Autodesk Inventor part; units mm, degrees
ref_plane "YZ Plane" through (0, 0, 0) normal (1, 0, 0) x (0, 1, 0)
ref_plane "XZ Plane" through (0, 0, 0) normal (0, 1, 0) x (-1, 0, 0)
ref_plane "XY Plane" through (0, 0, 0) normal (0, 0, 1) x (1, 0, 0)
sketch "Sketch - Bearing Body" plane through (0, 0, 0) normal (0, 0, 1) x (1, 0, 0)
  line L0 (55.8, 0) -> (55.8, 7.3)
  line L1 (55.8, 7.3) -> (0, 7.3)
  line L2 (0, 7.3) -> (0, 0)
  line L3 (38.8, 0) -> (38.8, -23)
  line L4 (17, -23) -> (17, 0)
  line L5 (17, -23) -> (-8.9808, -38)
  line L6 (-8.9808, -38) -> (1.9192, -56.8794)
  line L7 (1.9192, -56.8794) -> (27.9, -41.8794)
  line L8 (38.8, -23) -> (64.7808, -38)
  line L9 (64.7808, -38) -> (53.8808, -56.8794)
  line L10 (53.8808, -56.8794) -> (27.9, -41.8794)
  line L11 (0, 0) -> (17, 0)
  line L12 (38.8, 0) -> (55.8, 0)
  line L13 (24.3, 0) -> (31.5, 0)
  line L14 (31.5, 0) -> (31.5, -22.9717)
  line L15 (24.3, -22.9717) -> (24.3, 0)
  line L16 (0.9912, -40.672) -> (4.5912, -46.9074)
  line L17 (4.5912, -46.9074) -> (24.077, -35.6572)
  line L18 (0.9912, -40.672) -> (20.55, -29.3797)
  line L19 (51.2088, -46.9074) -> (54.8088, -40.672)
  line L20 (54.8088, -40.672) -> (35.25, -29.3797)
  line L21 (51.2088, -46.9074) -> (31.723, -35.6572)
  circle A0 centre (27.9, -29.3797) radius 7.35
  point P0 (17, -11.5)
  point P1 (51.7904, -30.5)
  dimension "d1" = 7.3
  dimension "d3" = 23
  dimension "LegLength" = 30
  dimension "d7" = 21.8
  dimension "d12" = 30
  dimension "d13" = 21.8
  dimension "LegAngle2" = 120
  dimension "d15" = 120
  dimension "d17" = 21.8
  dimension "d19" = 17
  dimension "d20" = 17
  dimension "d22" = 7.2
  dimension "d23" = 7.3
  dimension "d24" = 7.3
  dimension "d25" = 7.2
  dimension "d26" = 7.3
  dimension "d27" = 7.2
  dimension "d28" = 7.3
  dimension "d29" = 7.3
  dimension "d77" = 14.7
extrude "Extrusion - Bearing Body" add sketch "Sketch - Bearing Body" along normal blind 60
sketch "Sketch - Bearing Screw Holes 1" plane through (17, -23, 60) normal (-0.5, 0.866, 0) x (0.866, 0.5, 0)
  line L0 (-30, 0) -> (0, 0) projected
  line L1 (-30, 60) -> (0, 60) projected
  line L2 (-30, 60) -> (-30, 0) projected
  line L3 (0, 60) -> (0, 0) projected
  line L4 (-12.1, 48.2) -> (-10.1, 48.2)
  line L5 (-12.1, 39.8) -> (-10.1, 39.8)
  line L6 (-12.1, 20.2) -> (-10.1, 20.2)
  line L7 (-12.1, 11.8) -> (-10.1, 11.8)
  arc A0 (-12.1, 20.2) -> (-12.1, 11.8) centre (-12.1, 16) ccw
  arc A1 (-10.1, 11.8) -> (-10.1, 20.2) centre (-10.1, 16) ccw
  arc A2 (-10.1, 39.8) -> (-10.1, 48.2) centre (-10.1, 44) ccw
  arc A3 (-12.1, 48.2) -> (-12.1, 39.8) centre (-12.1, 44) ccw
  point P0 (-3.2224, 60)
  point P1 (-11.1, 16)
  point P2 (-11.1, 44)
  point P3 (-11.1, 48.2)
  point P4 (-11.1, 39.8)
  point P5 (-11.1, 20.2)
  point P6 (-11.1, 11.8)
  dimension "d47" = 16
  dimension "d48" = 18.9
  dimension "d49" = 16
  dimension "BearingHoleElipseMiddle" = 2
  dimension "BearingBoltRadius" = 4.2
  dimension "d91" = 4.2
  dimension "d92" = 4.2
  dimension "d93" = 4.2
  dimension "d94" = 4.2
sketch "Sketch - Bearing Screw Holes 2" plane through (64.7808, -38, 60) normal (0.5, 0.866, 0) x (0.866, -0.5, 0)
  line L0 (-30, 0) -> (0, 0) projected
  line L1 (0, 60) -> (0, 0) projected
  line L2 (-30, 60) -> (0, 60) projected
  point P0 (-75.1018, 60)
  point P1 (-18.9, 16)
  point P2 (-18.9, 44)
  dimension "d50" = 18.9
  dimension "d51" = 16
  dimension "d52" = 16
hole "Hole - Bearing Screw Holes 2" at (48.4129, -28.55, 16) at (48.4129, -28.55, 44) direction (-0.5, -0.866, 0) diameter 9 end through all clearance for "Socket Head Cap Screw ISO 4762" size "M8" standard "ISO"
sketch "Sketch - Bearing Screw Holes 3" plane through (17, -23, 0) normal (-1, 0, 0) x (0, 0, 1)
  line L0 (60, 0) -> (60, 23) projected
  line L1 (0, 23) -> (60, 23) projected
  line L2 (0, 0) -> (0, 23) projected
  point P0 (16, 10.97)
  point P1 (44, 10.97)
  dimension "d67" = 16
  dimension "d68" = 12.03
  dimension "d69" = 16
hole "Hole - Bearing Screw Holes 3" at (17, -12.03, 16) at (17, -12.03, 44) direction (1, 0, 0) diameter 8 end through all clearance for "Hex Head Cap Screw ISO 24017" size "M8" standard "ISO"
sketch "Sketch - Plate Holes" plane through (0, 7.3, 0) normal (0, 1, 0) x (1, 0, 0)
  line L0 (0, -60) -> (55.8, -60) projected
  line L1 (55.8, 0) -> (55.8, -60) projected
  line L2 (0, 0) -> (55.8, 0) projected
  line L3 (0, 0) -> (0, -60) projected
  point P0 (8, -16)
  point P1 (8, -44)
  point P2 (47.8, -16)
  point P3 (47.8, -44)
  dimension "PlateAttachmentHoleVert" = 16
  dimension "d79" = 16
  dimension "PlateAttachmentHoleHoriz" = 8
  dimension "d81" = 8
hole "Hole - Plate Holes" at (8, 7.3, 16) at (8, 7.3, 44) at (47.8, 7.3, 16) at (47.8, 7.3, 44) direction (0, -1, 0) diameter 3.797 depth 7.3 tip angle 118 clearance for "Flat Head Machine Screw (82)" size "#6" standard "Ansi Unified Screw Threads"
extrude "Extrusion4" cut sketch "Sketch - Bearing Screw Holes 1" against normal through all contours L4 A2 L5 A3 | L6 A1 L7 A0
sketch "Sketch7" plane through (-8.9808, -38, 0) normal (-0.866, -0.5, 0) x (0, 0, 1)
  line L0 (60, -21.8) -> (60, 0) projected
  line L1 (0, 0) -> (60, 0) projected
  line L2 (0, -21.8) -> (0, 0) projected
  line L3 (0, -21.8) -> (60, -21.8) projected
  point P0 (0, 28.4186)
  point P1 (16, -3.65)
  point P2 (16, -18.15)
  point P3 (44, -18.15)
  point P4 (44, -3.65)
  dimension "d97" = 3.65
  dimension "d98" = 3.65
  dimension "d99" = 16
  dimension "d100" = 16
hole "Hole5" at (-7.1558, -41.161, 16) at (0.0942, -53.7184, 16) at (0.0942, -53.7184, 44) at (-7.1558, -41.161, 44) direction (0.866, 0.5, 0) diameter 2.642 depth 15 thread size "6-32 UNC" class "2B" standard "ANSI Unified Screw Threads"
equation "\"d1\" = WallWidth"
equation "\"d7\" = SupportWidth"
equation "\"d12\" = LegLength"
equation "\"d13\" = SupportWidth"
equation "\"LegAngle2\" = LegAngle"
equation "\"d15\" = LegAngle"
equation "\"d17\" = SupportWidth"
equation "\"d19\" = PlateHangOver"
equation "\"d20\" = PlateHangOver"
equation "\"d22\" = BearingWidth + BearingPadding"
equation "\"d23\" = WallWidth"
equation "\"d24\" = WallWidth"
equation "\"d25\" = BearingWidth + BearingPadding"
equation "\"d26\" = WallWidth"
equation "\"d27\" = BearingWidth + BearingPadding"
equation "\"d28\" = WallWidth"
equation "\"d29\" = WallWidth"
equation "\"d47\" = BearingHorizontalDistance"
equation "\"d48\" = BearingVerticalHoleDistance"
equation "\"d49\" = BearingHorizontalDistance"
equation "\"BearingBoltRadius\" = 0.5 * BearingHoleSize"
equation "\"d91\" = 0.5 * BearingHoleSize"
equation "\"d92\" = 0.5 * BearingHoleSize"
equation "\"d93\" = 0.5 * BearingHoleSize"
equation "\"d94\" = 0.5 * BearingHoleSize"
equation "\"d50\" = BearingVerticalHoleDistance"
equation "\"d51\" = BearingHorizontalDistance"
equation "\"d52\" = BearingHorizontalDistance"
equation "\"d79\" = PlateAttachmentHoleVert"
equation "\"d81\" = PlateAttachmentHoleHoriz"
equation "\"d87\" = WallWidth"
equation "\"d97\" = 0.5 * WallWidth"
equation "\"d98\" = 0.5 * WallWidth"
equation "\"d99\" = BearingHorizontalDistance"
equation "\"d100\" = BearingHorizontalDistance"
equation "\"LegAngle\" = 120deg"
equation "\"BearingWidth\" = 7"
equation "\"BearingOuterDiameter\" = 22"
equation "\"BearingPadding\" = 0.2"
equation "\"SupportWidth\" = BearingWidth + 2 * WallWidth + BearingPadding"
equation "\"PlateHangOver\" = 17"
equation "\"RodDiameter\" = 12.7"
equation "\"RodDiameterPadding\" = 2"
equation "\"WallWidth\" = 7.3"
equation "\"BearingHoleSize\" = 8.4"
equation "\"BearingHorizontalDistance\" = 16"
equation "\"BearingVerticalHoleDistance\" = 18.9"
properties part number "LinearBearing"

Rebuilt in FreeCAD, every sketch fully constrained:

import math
import FreeCAD as App
import Part
import Sketcher
Q = App.Units.Quantity

doc = App.newDocument("Part")
body = doc.addObject("PartDesign::Body", "Body")

# Sketch on XY plane
sketch1 = doc.addObject("Sketcher::SketchObject", "Sketch")
body.addObject(sketch1)
sketch1.AttachmentSupport = (doc.XY_Plane, [""])
sketch1.MapMode = "FlatFace"
sketch1.addGeometry(Part.LineSegment(App.Vector(38.8, 0, 0), App.Vector(55.8, 0, 0)), False)
sketch1.addGeometry(Part.LineSegment(App.Vector(55.8, 0, 0), App.Vector(55.8, 7.3, 0)), False)
sketch1.addGeometry(Part.LineSegment(App.Vector(55.8, 7.3, 0), App.Vector(0, 7.3, 0)), False)
sketch1.addGeometry(Part.LineSegment(App.Vector(0, 7.3, 0), App.Vector(0, 0, 0)), False)
sketch1.addGeometry(Part.LineSegment(App.Vector(0, 0, 0), App.Vector(17, 0, 0)), False)
sketch1.addGeometry(Part.LineSegment(App.Vector(17, 0, 0), App.Vector(17, -23, 0)), False)
sketch1.addGeometry(Part.LineSegment(App.Vector(17, -23, 0), App.Vector(-8.9808, -38, 0)), False)
sketch1.addGeometry(Part.LineSegment(App.Vector(-8.9808, -38, 0), App.Vector(1.9192, -56.8794, 0)), False)
sketch1.addGeometry(Part.LineSegment(App.Vector(1.9192, -56.8794, 0), App.Vector(27.9, -41.8794, 0)), False)
sketch1.addGeometry(Part.LineSegment(App.Vector(27.9, -41.8794, 0), App.Vector(53.8808, -56.8794, 0)), False)
sketch1.addGeometry(Part.LineSegment(App.Vector(53.8808, -56.8794, 0), App.Vector(64.7808, -38, 0)), False)
sketch1.addGeometry(Part.LineSegment(App.Vector(64.7808, -38, 0), App.Vector(38.8, -23, 0)), False)
sketch1.addGeometry(Part.LineSegment(App.Vector(38.8, -23, 0), App.Vector(38.8, 0, 0)), False)
sketch1.addGeometry(Part.LineSegment(App.Vector(24.3, -22.9717, 0), App.Vector(24.3, 0, 0)), False)
sketch1.addGeometry(Part.LineSegment(App.Vector(24.3, 0, 0), App.Vector(31.5, 0, 0)), False)
sketch1.addGeometry(Part.LineSegment(App.Vector(31.5, 0, 0), App.Vector(31.5, -22.9717, 0)), False)
sketch1.addGeometry(Part.ArcOfCircle(Part.Circle(App.Vector(27.9, -29.3797, 0), App.Vector(0, 0, 1), 7.35), math.radians(0), math.radians(60.672821)), False)
sketch1.addGeometry(Part.LineSegment(App.Vector(35.25, -29.3797, 0), App.Vector(54.8088, -40.672, 0)), False)
sketch1.addGeometry(Part.LineSegment(App.Vector(54.8088, -40.672, 0), App.Vector(51.2088, -46.9074, 0)), False)
sketch1.addGeometry(Part.LineSegment(App.Vector(51.2088, -46.9074, 0), App.Vector(31.723, -35.6572, 0)), False)
sketch1.addGeometry(Part.ArcOfCircle(Part.Circle(App.Vector(27.9, -29.3797, 0), App.Vector(0, 0, 1), 7.35), math.radians(-121.341431), math.radians(-58.658569)), False)
sketch1.addGeometry(Part.LineSegment(App.Vector(24.077, -35.6572, 0), App.Vector(4.5912, -46.9074, 0)), False)
sketch1.addGeometry(Part.LineSegment(App.Vector(4.5912, -46.9074, 0), App.Vector(0.9912, -40.672, 0)), False)
sketch1.addGeometry(Part.LineSegment(App.Vector(0.9912, -40.672, 0), App.Vector(20.55, -29.3797, 0)), False)
sketch1.addGeometry(Part.ArcOfCircle(Part.Circle(App.Vector(27.9, -29.3797, 0), App.Vector(0, 0, 1), 7.35), math.radians(119.327179), math.radians(180)), False)
sketch1.addConstraint(Sketcher.Constraint("Coincident", 0, 2, 1, 1))
sketch1.addConstraint(Sketcher.Constraint("Coincident", 1, 2, 2, 1))
sketch1.addConstraint(Sketcher.Constraint("Coincident", 2, 2, 3, 1))
sketch1.addConstraint(Sketcher.Constraint("Coincident", 3, 2, 4, 1))
sketch1.addConstraint(Sketcher.Constraint("Coincident", 4, 2, 5, 1))
sketch1.addConstraint(Sketcher.Constraint("Coincident", 5, 2, 6, 1))
sketch1.addConstraint(Sketcher.Constraint("Coincident", 6, 2, 7, 1))
sketch1.addConstraint(Sketcher.Constraint("Coincident", 7, 2, 8, 1))
sketch1.addConstraint(Sketcher.Constraint("Coincident", 8, 2, 9, 1))
sketch1.addConstraint(Sketcher.Constraint("Coincident", 9, 2, 10, 1))
sketch1.addConstraint(Sketcher.Constraint("Coincident", 10, 2, 11, 1))
sketch1.addConstraint(Sketcher.Constraint("Coincident", 11, 2, 12, 1))
sketch1.addConstraint(Sketcher.Constraint("Coincident", 12, 2, 0, 1))
sketch1.addConstraint(Sketcher.Constraint("Coincident", 13, 2, 14, 1))
sketch1.addConstraint(Sketcher.Constraint("Coincident", 14, 2, 15, 1))
sketch1.addConstraint(Sketcher.Constraint("Coincident", 15, 2, 16, 2))
sketch1.addConstraint(Sketcher.Constraint("Coincident", 16, 1, 17, 1))
sketch1.addConstraint(Sketcher.Constraint("Coincident", 17, 2, 18, 1))
sketch1.addConstraint(Sketcher.Constraint("Coincident", 18, 2, 19, 1))
sketch1.addConstraint(Sketcher.Constraint("Coincident", 19, 2, 20, 2))
sketch1.addConstraint(Sketcher.Constraint("Coincident", 20, 1, 21, 1))
sketch1.addConstraint(Sketcher.Constraint("Coincident", 21, 2, 22, 1))
sketch1.addConstraint(Sketcher.Constraint("Coincident", 22, 2, 23, 1))
sketch1.addConstraint(Sketcher.Constraint("Coincident", 23, 2, 24, 2))
sketch1.addConstraint(Sketcher.Constraint("Coincident", 24, 1, 13, 1))
sketch1.addConstraint(Sketcher.Constraint("Horizontal", 0))
sketch1.addConstraint(Sketcher.Constraint("Vertical", 1))
sketch1.addConstraint(Sketcher.Constraint("Horizontal", 2))
sketch1.addConstraint(Sketcher.Constraint("Vertical", 3))
sketch1.addConstraint(Sketcher.Constraint("Horizontal", 4))
sketch1.addConstraint(Sketcher.Constraint("Vertical", 5))
sketch1.addConstraint(Sketcher.Constraint("Vertical", 12))
sketch1.addConstraint(Sketcher.Constraint("Vertical", 13))
sketch1.addConstraint(Sketcher.Constraint("Horizontal", 14))
sketch1.addConstraint(Sketcher.Constraint("Vertical", 15))
sketch1.addConstraint(Sketcher.Constraint("Coincident", 3, 2, -1, 1))
sketch1.addConstraint(Sketcher.Constraint("Coincident", 20, 3, 16, 3))
sketch1.addConstraint(Sketcher.Constraint("Coincident", 24, 3, 16, 3))
sketch1.addConstraint(Sketcher.Constraint("Equal", 16, 20))
sketch1.addConstraint(Sketcher.Constraint("Equal", 20, 24))
sketch1.addConstraint(Sketcher.Constraint("PointOnObject", 0, 2, -1))
sketch1.addConstraint(Sketcher.Constraint("PointOnObject", 13, 2, -1))
sketch1.addConstraint(Sketcher.Constraint("Perpendicular", 6, 7))
sketch1.addConstraint(Sketcher.Constraint("Perpendicular", 7, 8))
sketch1.addConstraint(Sketcher.Constraint("Perpendicular", 9, 10))
sketch1.addConstraint(Sketcher.Constraint("Perpendicular", 10, 11))
sketch1.addConstraint(Sketcher.Constraint("Parallel", 11, 17))
sketch1.addConstraint(Sketcher.Constraint("Perpendicular", 17, 18))
sketch1.addConstraint(Sketcher.Constraint("Perpendicular", 18, 19))
sketch1.addConstraint(Sketcher.Constraint("Parallel", 8, 21))
sketch1.addConstraint(Sketcher.Constraint("Perpendicular", 21, 22))
sketch1.addConstraint(Sketcher.Constraint("Perpendicular", 22, 23))
sketch1.addConstraint(Sketcher.Constraint("Horizontal", 7, 2, 9, 2))
sketch1.addConstraint(Sketcher.Constraint("Horizontal", 6, 2, 10, 2))
sketch1.addConstraint(Sketcher.Constraint("Horizontal", 5, 2, 11, 2))
sketch1.addConstraint(Sketcher.Constraint("Horizontal", 24, 3, 16, 1))
sketch1.addConstraint(Sketcher.Constraint("Horizontal", 19, 2, 20, 1))
sketch1.addConstraint(Sketcher.Constraint("Horizontal", 18, 2, 21, 2))
sketch1.addConstraint(Sketcher.Constraint("Horizontal", 17, 2, 22, 2))
sketch1.addConstraint(Sketcher.Constraint("Horizontal", 16, 1, 23, 2))
sketch1.addConstraint(Sketcher.Constraint("Horizontal", 15, 2, 24, 1))
sketch1.addConstraint(Sketcher.Constraint("Vertical", 24, 3, 8, 2))
sketch1.addConstraint(Sketcher.Constraint("Equal", 0, 4))
sketch1.addConstraint(Sketcher.Constraint("Equal", 6, 8))
sketch1.addConstraint(Sketcher.Constraint("DistanceX", 0, 1, 0, 2, Q("17 mm")))
sketch1.addConstraint(Sketcher.Constraint("DistanceY", 5, 2, 5, 1, Q("23 mm")))
sketch1.addConstraint(Sketcher.Constraint("Angle", 8, Q("30 deg")))
sketch1.addConstraint(Sketcher.Constraint("Radius", 16, Q("7.35 mm")))
sketch1.addConstraint(Sketcher.Constraint("Distance", 6, Q("30 mm")))
sketch1.addConstraint(Sketcher.Constraint("DistanceX", 14, 1, 14, 2, Q("7.2 mm")))
sketch1.addConstraint(Sketcher.Constraint("DistanceY", 1, 1, 1, 2, Q("7.3 mm")))
sketch1.addConstraint(Sketcher.Constraint("Distance", 7, Q("21.8 mm")))
sketch1.addConstraint(Sketcher.Constraint("Distance", 18, Q("7.2 mm")))
sketch1.addConstraint(Sketcher.Constraint("DistanceY", 13, 1, 13, 2, Q("22.9717 mm")))
sketch1.addConstraint(Sketcher.Constraint("DistanceY", 17, 2, -1, 1, Q("40.672 mm")))
pad1 = doc.addObject("PartDesign::Pad", "Pad")
body.addObject(pad1)
pad1.Profile = sketch1
pad1.Length = 60

# Sketch on an angled plane
sketch2 = doc.addObject("Sketcher::SketchObject", "Sketch001")
body.addObject(sketch2)
sketch2.Placement = App.Placement(App.Vector(-0.259288, -0.449099, 0), App.Rotation(App.Vector(-0.866025404, 0.5, 0), App.Vector(0, 0, 1), App.Vector(0.5, 0.866025404, 0), "ZXY"))
sketch2.addGeometry(Part.Circle(App.Vector(-56.201801, 16, 0), App.Vector(0, 0, 1), 4.5), False)
sketch2.addGeometry(Part.Circle(App.Vector(-56.201801, 44, 0), App.Vector(0, 0, 1), 4.5), False)
sketch2.addConstraint(Sketcher.Constraint("Equal", 0, 1))
sketch2.addConstraint(Sketcher.Constraint("Vertical", 0, 3, 1, 3))
sketch2.addConstraint(Sketcher.Constraint("Diameter", 0, Q("9 mm")))
sketch2.addConstraint(Sketcher.Constraint("DistanceY", -1, 1, 0, 3, Q("16 mm")))
sketch2.addConstraint(Sketcher.Constraint("DistanceY", -1, 1, 1, 3, Q("44 mm")))
sketch2.addConstraint(Sketcher.Constraint("DistanceX", 0, 3, -1, 1, Q("56.2018 mm")))
doc.recompute()
hole = doc.addObject("PartDesign::Hole", "Hole")
body.addObject(hole)
hole.Profile = sketch2
hole.ThreadType = "None"
hole.Diameter = 9
hole.DepthType = "ThroughAll"

# Sketch on YZ plane
sketch3 = doc.addObject("Sketcher::SketchObject", "Sketch002")
body.addObject(sketch3)
sketch3.AttachmentSupport = (doc.YZ_Plane, [""])
sketch3.MapMode = "FlatFace"
sketch3.AttachmentOffset = App.Placement(App.Vector(0, 0, 17), App.Rotation())
sketch3.addGeometry(Part.Circle(App.Vector(-12.03, 16, 0), App.Vector(0, 0, 1), 4), False)
sketch3.addGeometry(Part.Circle(App.Vector(-12.03, 44, 0), App.Vector(0, 0, 1), 4), False)
sketch3.addConstraint(Sketcher.Constraint("Equal", 0, 1))
sketch3.addConstraint(Sketcher.Constraint("Vertical", 0, 3, 1, 3))
sketch3.addConstraint(Sketcher.Constraint("Diameter", 0, Q("8 mm")))
sketch3.addConstraint(Sketcher.Constraint("DistanceY", -1, 1, 0, 3, Q("16 mm")))
sketch3.addConstraint(Sketcher.Constraint("DistanceY", -1, 1, 1, 3, Q("44 mm")))
sketch3.addConstraint(Sketcher.Constraint("DistanceX", 0, 3, -1, 1, Q("12.03 mm")))
doc.recompute()
hole2 = doc.addObject("PartDesign::Hole", "Hole001")
body.addObject(hole2)
hole2.Profile = sketch3
hole2.ThreadType = "None"
hole2.Diameter = 8
hole2.DepthType = "ThroughAll"
hole2.Reversed = True

# Sketch on XZ plane
sketch4 = doc.addObject("Sketcher::SketchObject", "Sketch003")
body.addObject(sketch4)
sketch4.AttachmentSupport = (doc.XZ_Plane, [""])
sketch4.MapMode = "FlatFace"
sketch4.AttachmentOffset = App.Placement(App.Vector(0, 0, -7.3), App.Rotation())
sketch4.addGeometry(Part.Circle(App.Vector(8, 16, 0), App.Vector(0, 0, 1), 1.8985), False)
sketch4.addGeometry(Part.Circle(App.Vector(8, 44, 0), App.Vector(0, 0, 1), 1.8985), False)
sketch4.addGeometry(Part.Circle(App.Vector(47.8, 16, 0), App.Vector(0, 0, 1), 1.8985), False)
sketch4.addGeometry(Part.Circle(App.Vector(47.8, 44, 0), App.Vector(0, 0, 1), 1.8985), False)
sketch4.addConstraint(Sketcher.Constraint("Equal", 0, 1))
sketch4.addConstraint(Sketcher.Constraint("Equal", 1, 2))
sketch4.addConstraint(Sketcher.Constraint("Equal", 2, 3))
sketch4.addConstraint(Sketcher.Constraint("Horizontal", 0, 3, 2, 3))
sketch4.addConstraint(Sketcher.Constraint("Horizontal", 1, 3, 3, 3))
sketch4.addConstraint(Sketcher.Constraint("Vertical", 0, 3, 1, 3))
sketch4.addConstraint(Sketcher.Constraint("Vertical", 2, 3, 3, 3))
sketch4.addConstraint(Sketcher.Constraint("Diameter", 0, Q("3.797 mm")))
sketch4.addConstraint(Sketcher.Constraint("DistanceX", -1, 1, 0, 3, Q("8 mm")))
sketch4.addConstraint(Sketcher.Constraint("DistanceY", -1, 1, 0, 3, Q("16 mm")))
sketch4.addConstraint(Sketcher.Constraint("DistanceY", -1, 1, 1, 3, Q("44 mm")))
sketch4.addConstraint(Sketcher.Constraint("DistanceX", -1, 1, 2, 3, Q("47.8 mm")))
doc.recompute()
hole3 = doc.addObject("PartDesign::Hole", "Hole002")
body.addObject(hole3)
hole3.Profile = sketch4
hole3.ThreadType = "None"
hole3.Diameter = 3.797
hole3.DepthType = "Dimension"
hole3.Depth = 7.3
hole3.DrillPoint = "Angled"
hole3.DrillPointAngle = 118
hole3.Reversed = True

# Sketch on an angled plane
sketch5 = doc.addObject("Sketcher::SketchObject", "Sketch004")
body.addObject(sketch5)
sketch5.Placement = App.Placement(App.Vector(17, -23, 60), App.Rotation(App.Vector(0.866025404, 0.5, 0), App.Vector(0, 0, -1), App.Vector(-0.5, 0.866025404, 0), "ZXY"))
sketch5.addGeometry(Part.LineSegment(App.Vector(-10.1, 48.2, 0), App.Vector(-12.1, 48.2, 0)), False)
sketch5.addGeometry(Part.ArcOfCircle(Part.Circle(App.Vector(-12.1, 44, 0), App.Vector(0, 0, 1), 4.2), math.radians(90), math.radians(270)), False)
sketch5.addGeometry(Part.LineSegment(App.Vector(-12.1, 39.8, 0), App.Vector(-10.1, 39.8, 0)), False)
sketch5.addGeometry(Part.ArcOfCircle(Part.Circle(App.Vector(-10.1, 44, 0), App.Vector(0, 0, 1), 4.2), math.radians(-90), math.radians(90)), False)
sketch5.addGeometry(Part.LineSegment(App.Vector(-10.1, 20.2, 0), App.Vector(-12.1, 20.2, 0)), False)
sketch5.addGeometry(Part.ArcOfCircle(Part.Circle(App.Vector(-12.1, 16, 0), App.Vector(0, 0, 1), 4.2), math.radians(90), math.radians(270)), False)
sketch5.addGeometry(Part.LineSegment(App.Vector(-12.1, 11.8, 0), App.Vector(-10.1, 11.8, 0)), False)
sketch5.addGeometry(Part.ArcOfCircle(Part.Circle(App.Vector(-10.1, 16, 0), App.Vector(0, 0, 1), 4.2), math.radians(-90), math.radians(90)), False)
sketch5.addConstraint(Sketcher.Constraint("Tangent", 0, 2, 1, 1))
sketch5.addConstraint(Sketcher.Constraint("Tangent", 1, 2, 2, 1))
sketch5.addConstraint(Sketcher.Constraint("Tangent", 2, 2, 3, 1))
sketch5.addConstraint(Sketcher.Constraint("Tangent", 3, 2, 0, 1))
sketch5.addConstraint(Sketcher.Constraint("Tangent", 4, 2, 5, 1))
sketch5.addConstraint(Sketcher.Constraint("Tangent", 5, 2, 6, 1))
sketch5.addConstraint(Sketcher.Constraint("Tangent", 6, 2, 7, 1))
sketch5.addConstraint(Sketcher.Constraint("Tangent", 7, 2, 4, 1))
sketch5.addConstraint(Sketcher.Constraint("Horizontal", 0))
sketch5.addConstraint(Sketcher.Constraint("Horizontal", 2))
sketch5.addConstraint(Sketcher.Constraint("Horizontal", 4))
sketch5.addConstraint(Sketcher.Constraint("Horizontal", 6))
sketch5.addConstraint(Sketcher.Constraint("Equal", 3, 5))
sketch5.addConstraint(Sketcher.Constraint("Vertical", 1, 3, 5, 3))
sketch5.addConstraint(Sketcher.Constraint("Vertical", 3, 3, 7, 3))
sketch5.addConstraint(Sketcher.Constraint("Radius", 1, Q("4.2 mm")))
sketch5.addConstraint(Sketcher.Constraint("DistanceX", 0, 2, 0, 1, Q("2 mm")))
sketch5.addConstraint(Sketcher.Constraint("DistanceY", -1, 1, 5, 3, Q("16 mm")))
sketch5.addConstraint(Sketcher.Constraint("DistanceY", -1, 1, 1, 3, Q("44 mm")))
sketch5.addConstraint(Sketcher.Constraint("DistanceX", 1, 3, -1, 1, Q("12.1 mm")))
pocket1 = doc.addObject("PartDesign::Pocket", "Pocket")
body.addObject(pocket1)
pocket1.Profile = sketch5
pocket1.Type = "ThroughAll"

# Sketch on an angled plane
sketch6 = doc.addObject("Sketcher::SketchObject", "Sketch005")
body.addObject(sketch6)
sketch6.Placement = App.Placement(App.Vector(-23.190086, -13.388802, 0), App.Rotation(App.Vector(0.5, -0.866025404, 0), App.Vector(0, 0, 1), App.Vector(-0.866025404, -0.5, 0), "ZXY"))
sketch6.addGeometry(Part.Circle(App.Vector(32.068572, 16, 0), App.Vector(0, 0, 1), 1.321), False)
sketch6.addGeometry(Part.Circle(App.Vector(46.568599, 16, 0), App.Vector(0, 0, 1), 1.321), False)
sketch6.addGeometry(Part.Circle(App.Vector(46.568599, 44, 0), App.Vector(0, 0, 1), 1.321), False)
sketch6.addGeometry(Part.Circle(App.Vector(32.068572, 44, 0), App.Vector(0, 0, 1), 1.321), False)
sketch6.addConstraint(Sketcher.Constraint("Equal", 0, 1))
sketch6.addConstraint(Sketcher.Constraint("Equal", 1, 2))
sketch6.addConstraint(Sketcher.Constraint("Equal", 2, 3))
sketch6.addConstraint(Sketcher.Constraint("Horizontal", 0, 3, 1, 3))
sketch6.addConstraint(Sketcher.Constraint("Horizontal", 2, 3, 3, 3))
sketch6.addConstraint(Sketcher.Constraint("Vertical", 1, 3, 2, 3))
sketch6.addConstraint(Sketcher.Constraint("Vertical", 0, 3, 3, 3))
sketch6.addConstraint(Sketcher.Constraint("Diameter", 0, Q("2.642 mm")))
sketch6.addConstraint(Sketcher.Constraint("DistanceY", -1, 1, 0, 3, Q("16 mm")))
sketch6.addConstraint(Sketcher.Constraint("DistanceY", -1, 1, 2, 3, Q("44 mm")))
sketch6.addConstraint(Sketcher.Constraint("DistanceX", 0, 3, 1, 3, Q("14.5 mm")))
sketch6.addConstraint(Sketcher.Constraint("DistanceX", -1, 1, 0, 3, Q("32.0686 mm")))
doc.recompute()
hole4 = doc.addObject("PartDesign::Hole", "Hole003")
body.addObject(hole4)
hole4.Profile = sketch6
hole4.ThreadType = "None"
hole4.Diameter = 2.642
hole4.DepthType = "Dimension"
hole4.Depth = 15
hole4.DrillPoint = "Flat"

doc.recompute()
